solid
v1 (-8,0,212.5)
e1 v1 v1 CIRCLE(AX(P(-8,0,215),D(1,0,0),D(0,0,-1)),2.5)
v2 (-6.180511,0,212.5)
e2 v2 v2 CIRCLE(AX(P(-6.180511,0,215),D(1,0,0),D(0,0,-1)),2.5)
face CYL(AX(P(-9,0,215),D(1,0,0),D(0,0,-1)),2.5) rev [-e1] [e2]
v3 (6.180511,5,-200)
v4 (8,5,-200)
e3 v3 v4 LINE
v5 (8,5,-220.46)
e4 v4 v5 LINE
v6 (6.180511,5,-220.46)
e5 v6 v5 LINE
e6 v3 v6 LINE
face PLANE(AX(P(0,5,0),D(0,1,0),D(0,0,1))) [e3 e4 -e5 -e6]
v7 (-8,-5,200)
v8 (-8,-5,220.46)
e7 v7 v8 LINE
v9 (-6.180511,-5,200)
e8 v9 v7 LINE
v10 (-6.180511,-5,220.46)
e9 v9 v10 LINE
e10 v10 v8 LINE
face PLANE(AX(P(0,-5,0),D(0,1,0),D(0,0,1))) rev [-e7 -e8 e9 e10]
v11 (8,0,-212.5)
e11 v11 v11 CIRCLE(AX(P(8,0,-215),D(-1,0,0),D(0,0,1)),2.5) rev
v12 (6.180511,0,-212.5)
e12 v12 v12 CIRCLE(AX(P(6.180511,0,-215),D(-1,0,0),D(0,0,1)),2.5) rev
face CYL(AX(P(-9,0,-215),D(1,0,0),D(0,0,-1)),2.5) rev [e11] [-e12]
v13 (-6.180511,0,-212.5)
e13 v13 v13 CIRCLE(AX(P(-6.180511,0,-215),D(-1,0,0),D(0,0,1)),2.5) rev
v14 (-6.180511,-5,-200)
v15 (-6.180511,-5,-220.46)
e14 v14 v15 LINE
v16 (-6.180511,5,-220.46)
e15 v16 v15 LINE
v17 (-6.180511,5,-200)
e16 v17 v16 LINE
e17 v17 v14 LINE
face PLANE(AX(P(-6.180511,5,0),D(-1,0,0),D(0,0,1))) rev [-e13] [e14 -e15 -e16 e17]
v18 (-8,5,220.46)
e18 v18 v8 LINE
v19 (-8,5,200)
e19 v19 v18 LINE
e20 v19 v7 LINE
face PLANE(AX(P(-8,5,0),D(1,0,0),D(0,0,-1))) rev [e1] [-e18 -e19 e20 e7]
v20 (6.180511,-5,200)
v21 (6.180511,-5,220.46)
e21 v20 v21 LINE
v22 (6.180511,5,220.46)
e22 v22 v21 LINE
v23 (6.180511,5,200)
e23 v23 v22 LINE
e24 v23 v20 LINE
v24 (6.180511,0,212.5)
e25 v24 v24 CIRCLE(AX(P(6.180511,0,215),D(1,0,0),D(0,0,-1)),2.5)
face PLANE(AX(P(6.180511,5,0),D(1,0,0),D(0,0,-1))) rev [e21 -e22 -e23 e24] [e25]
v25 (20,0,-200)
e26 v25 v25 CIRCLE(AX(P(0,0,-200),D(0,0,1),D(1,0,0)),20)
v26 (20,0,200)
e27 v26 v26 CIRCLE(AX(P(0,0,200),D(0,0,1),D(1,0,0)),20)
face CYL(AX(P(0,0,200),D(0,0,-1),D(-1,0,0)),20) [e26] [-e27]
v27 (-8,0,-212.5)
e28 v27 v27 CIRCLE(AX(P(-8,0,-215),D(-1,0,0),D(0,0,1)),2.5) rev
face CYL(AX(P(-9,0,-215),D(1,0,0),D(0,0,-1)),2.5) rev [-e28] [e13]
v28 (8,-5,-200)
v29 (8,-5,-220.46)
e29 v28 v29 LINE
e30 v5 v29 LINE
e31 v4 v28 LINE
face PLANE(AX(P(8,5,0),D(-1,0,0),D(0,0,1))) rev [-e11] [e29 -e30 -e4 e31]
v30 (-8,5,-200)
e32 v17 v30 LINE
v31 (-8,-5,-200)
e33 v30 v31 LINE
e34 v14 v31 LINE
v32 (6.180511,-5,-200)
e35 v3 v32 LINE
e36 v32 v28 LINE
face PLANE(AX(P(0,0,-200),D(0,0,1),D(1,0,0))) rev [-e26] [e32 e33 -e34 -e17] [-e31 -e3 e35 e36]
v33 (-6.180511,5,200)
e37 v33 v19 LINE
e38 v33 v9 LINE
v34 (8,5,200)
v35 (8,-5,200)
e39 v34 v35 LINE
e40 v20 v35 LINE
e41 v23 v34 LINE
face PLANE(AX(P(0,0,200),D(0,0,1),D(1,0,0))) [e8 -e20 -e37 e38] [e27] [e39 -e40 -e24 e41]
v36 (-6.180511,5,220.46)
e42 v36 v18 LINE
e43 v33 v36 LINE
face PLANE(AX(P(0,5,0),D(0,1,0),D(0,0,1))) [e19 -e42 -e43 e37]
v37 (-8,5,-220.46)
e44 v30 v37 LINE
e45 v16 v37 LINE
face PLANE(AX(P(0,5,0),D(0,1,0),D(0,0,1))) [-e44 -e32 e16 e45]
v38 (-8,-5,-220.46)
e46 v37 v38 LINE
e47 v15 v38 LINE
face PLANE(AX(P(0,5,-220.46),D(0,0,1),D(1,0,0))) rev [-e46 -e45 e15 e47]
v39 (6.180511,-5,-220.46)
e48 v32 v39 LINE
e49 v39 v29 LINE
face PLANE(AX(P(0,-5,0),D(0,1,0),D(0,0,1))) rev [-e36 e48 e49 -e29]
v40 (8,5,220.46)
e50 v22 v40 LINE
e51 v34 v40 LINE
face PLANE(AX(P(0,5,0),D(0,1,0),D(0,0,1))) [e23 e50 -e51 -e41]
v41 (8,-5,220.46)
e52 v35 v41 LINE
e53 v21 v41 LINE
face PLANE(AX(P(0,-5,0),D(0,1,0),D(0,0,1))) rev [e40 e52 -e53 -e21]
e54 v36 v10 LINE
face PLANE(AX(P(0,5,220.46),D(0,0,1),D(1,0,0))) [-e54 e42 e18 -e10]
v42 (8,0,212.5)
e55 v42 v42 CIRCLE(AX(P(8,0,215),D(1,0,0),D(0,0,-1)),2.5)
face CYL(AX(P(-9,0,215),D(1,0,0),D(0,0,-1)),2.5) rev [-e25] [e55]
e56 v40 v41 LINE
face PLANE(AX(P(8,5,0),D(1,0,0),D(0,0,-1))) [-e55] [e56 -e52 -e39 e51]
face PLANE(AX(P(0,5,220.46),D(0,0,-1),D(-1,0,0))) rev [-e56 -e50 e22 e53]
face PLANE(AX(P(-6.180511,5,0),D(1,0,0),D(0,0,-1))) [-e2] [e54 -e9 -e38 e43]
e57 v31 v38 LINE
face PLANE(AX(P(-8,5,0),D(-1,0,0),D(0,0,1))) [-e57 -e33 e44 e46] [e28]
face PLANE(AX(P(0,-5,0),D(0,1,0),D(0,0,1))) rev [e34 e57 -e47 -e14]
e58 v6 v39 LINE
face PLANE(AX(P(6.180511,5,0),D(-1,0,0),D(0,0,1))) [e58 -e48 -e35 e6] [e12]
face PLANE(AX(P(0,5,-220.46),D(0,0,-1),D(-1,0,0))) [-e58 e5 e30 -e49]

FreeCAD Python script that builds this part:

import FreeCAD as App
import Part
import Sketcher


def add_polygon(sketch, points):
    """Adds a closed chain of lines whose ends are joined by coincident constraints."""
    first, n = sketch.GeometryCount, len(points)
    for a, b in zip(points, points[1:] + points[:1]):
        sketch.addGeometry(Part.LineSegment(App.Vector(*a, 0), App.Vector(*b, 0)), False)
    for i in range(n):
        sketch.addConstraint(Sketcher.Constraint("Coincident", first + i, 2, first + (i + 1) % n, 1))

doc = App.newDocument("Part")
body = doc.addObject("PartDesign::Body", "Body")

# Sketch on XY plane
sketch1 = body.newObject("Sketcher::SketchObject", "Sketch")
sketch1.AttachmentSupport = (doc.getObject("XY_Plane"), [""])
sketch1.MapMode = "FlatFace"
sketch1.addGeometry(Part.Circle(App.Vector(0, 0, 0), App.Vector(0, 0, 1), 20), False)
sketch1.addConstraint([
    Sketcher.Constraint("Coincident", 0, 3, -1, 1),
    Sketcher.Constraint("Diameter", 0, 40.0),
])
pad1 = body.newObject("PartDesign::Pad", "Pad")
pad1.Profile = sketch1
pad1.Length = 400
pad1.Midplane = True

# Sketch on XZ plane
sketch2 = body.newObject("Sketcher::SketchObject", "Sketch001")
sketch2.AttachmentSupport = (doc.getObject("XZ_Plane"), [""])
sketch2.MapMode = "FlatFace"
add_polygon(sketch2, [(6.2, 200), (6.2, 220.5), (8, 220.5), (8, 200)])  # lines 0-3
add_polygon(sketch2, [(-8, 200), (-8, 220.5), (-6.2, 220.5), (-6.2, 200)])  # lines 4-7
add_polygon(sketch2, [(6.2, -220.5), (6.2, -200), (8, -200), (8, -220.5)])  # lines 8-11
add_polygon(sketch2, [(-8, -220.5), (-8, -200), (-6.2, -200), (-6.2, -220.5)])  # lines 12-15
sketch2.addConstraint([
    Sketcher.Constraint("Vertical", 0),
    Sketcher.Constraint("Horizontal", 1),
    Sketcher.Constraint("Vertical", 2),
    Sketcher.Constraint("Horizontal", 3),
    Sketcher.Constraint("Vertical", 4),
    Sketcher.Constraint("Horizontal", 5),
    Sketcher.Constraint("Vertical", 6),
    Sketcher.Constraint("Horizontal", 7),
    Sketcher.Constraint("Vertical", 8),
    Sketcher.Constraint("Horizontal", 9),
    Sketcher.Constraint("Vertical", 10),
    Sketcher.Constraint("Horizontal", 11),
    Sketcher.Constraint("Vertical", 12),
    Sketcher.Constraint("Horizontal", 13),
    Sketcher.Constraint("Vertical", 14),
    Sketcher.Constraint("Horizontal", 15),
    Sketcher.Constraint("Symmetric", 6, 2, 8, 2, -1, 1),
    Sketcher.Constraint("Symmetric", 4, 2, 10, 2, -1, 1),
    Sketcher.Constraint("Symmetric", 2, 2, 12, 2, -1, 1),
    Sketcher.Constraint("Symmetric", 0, 2, 14, 2, -1, 1),
    Sketcher.Constraint("Symmetric", 1, 2, 4, 2, -2),
    Sketcher.Constraint("Symmetric", 3, 2, 6, 2, -2),
    Sketcher.Constraint("DistanceX", -1, 1, 1, 2, 8.0),
    Sketcher.Constraint("DistanceY", -1, 1, 2, 2, 200.0),
    Sketcher.Constraint("DistanceY", 0, 1, 0, 2, 20.46),
    Sketcher.Constraint("DistanceX", 1, 1, 1, 2, 1.819489),
])
pad2 = body.newObject("PartDesign::Pad", "Pad001")
pad2.Profile = sketch2
pad2.Length = 10
pad2.Midplane = True

# Sketch on YZ plane
sketch3 = body.newObject("Sketcher::SketchObject", "Sketch002")
sketch3.AttachmentSupport = (doc.getObject("YZ_Plane"), [""])
sketch3.MapMode = "FlatFace"
sketch3.addGeometry([
    Part.Circle(App.Vector(0, 215, 0), App.Vector(0, 0, 1), 2.5),
    Part.Circle(App.Vector(0, -215, 0), App.Vector(0, 0, 1), 2.5),
], False)
sketch3.addConstraint([
    Sketcher.Constraint("Equal", 0, 1),
    Sketcher.Constraint("Symmetric", 0, 3, 1, 3, -1, 1),
    Sketcher.Constraint("PointOnObject", 0, 3, -2),
    Sketcher.Constraint("Diameter", 0, 5.0),
    Sketcher.Constraint("DistanceY", -1, 1, 0, 3, 215.0),
])
pocket1 = body.newObject("PartDesign::Pocket", "Pocket")
pocket1.Profile = sketch3
pocket1.Length = 18
pocket1.Midplane = True

doc.recompute()
